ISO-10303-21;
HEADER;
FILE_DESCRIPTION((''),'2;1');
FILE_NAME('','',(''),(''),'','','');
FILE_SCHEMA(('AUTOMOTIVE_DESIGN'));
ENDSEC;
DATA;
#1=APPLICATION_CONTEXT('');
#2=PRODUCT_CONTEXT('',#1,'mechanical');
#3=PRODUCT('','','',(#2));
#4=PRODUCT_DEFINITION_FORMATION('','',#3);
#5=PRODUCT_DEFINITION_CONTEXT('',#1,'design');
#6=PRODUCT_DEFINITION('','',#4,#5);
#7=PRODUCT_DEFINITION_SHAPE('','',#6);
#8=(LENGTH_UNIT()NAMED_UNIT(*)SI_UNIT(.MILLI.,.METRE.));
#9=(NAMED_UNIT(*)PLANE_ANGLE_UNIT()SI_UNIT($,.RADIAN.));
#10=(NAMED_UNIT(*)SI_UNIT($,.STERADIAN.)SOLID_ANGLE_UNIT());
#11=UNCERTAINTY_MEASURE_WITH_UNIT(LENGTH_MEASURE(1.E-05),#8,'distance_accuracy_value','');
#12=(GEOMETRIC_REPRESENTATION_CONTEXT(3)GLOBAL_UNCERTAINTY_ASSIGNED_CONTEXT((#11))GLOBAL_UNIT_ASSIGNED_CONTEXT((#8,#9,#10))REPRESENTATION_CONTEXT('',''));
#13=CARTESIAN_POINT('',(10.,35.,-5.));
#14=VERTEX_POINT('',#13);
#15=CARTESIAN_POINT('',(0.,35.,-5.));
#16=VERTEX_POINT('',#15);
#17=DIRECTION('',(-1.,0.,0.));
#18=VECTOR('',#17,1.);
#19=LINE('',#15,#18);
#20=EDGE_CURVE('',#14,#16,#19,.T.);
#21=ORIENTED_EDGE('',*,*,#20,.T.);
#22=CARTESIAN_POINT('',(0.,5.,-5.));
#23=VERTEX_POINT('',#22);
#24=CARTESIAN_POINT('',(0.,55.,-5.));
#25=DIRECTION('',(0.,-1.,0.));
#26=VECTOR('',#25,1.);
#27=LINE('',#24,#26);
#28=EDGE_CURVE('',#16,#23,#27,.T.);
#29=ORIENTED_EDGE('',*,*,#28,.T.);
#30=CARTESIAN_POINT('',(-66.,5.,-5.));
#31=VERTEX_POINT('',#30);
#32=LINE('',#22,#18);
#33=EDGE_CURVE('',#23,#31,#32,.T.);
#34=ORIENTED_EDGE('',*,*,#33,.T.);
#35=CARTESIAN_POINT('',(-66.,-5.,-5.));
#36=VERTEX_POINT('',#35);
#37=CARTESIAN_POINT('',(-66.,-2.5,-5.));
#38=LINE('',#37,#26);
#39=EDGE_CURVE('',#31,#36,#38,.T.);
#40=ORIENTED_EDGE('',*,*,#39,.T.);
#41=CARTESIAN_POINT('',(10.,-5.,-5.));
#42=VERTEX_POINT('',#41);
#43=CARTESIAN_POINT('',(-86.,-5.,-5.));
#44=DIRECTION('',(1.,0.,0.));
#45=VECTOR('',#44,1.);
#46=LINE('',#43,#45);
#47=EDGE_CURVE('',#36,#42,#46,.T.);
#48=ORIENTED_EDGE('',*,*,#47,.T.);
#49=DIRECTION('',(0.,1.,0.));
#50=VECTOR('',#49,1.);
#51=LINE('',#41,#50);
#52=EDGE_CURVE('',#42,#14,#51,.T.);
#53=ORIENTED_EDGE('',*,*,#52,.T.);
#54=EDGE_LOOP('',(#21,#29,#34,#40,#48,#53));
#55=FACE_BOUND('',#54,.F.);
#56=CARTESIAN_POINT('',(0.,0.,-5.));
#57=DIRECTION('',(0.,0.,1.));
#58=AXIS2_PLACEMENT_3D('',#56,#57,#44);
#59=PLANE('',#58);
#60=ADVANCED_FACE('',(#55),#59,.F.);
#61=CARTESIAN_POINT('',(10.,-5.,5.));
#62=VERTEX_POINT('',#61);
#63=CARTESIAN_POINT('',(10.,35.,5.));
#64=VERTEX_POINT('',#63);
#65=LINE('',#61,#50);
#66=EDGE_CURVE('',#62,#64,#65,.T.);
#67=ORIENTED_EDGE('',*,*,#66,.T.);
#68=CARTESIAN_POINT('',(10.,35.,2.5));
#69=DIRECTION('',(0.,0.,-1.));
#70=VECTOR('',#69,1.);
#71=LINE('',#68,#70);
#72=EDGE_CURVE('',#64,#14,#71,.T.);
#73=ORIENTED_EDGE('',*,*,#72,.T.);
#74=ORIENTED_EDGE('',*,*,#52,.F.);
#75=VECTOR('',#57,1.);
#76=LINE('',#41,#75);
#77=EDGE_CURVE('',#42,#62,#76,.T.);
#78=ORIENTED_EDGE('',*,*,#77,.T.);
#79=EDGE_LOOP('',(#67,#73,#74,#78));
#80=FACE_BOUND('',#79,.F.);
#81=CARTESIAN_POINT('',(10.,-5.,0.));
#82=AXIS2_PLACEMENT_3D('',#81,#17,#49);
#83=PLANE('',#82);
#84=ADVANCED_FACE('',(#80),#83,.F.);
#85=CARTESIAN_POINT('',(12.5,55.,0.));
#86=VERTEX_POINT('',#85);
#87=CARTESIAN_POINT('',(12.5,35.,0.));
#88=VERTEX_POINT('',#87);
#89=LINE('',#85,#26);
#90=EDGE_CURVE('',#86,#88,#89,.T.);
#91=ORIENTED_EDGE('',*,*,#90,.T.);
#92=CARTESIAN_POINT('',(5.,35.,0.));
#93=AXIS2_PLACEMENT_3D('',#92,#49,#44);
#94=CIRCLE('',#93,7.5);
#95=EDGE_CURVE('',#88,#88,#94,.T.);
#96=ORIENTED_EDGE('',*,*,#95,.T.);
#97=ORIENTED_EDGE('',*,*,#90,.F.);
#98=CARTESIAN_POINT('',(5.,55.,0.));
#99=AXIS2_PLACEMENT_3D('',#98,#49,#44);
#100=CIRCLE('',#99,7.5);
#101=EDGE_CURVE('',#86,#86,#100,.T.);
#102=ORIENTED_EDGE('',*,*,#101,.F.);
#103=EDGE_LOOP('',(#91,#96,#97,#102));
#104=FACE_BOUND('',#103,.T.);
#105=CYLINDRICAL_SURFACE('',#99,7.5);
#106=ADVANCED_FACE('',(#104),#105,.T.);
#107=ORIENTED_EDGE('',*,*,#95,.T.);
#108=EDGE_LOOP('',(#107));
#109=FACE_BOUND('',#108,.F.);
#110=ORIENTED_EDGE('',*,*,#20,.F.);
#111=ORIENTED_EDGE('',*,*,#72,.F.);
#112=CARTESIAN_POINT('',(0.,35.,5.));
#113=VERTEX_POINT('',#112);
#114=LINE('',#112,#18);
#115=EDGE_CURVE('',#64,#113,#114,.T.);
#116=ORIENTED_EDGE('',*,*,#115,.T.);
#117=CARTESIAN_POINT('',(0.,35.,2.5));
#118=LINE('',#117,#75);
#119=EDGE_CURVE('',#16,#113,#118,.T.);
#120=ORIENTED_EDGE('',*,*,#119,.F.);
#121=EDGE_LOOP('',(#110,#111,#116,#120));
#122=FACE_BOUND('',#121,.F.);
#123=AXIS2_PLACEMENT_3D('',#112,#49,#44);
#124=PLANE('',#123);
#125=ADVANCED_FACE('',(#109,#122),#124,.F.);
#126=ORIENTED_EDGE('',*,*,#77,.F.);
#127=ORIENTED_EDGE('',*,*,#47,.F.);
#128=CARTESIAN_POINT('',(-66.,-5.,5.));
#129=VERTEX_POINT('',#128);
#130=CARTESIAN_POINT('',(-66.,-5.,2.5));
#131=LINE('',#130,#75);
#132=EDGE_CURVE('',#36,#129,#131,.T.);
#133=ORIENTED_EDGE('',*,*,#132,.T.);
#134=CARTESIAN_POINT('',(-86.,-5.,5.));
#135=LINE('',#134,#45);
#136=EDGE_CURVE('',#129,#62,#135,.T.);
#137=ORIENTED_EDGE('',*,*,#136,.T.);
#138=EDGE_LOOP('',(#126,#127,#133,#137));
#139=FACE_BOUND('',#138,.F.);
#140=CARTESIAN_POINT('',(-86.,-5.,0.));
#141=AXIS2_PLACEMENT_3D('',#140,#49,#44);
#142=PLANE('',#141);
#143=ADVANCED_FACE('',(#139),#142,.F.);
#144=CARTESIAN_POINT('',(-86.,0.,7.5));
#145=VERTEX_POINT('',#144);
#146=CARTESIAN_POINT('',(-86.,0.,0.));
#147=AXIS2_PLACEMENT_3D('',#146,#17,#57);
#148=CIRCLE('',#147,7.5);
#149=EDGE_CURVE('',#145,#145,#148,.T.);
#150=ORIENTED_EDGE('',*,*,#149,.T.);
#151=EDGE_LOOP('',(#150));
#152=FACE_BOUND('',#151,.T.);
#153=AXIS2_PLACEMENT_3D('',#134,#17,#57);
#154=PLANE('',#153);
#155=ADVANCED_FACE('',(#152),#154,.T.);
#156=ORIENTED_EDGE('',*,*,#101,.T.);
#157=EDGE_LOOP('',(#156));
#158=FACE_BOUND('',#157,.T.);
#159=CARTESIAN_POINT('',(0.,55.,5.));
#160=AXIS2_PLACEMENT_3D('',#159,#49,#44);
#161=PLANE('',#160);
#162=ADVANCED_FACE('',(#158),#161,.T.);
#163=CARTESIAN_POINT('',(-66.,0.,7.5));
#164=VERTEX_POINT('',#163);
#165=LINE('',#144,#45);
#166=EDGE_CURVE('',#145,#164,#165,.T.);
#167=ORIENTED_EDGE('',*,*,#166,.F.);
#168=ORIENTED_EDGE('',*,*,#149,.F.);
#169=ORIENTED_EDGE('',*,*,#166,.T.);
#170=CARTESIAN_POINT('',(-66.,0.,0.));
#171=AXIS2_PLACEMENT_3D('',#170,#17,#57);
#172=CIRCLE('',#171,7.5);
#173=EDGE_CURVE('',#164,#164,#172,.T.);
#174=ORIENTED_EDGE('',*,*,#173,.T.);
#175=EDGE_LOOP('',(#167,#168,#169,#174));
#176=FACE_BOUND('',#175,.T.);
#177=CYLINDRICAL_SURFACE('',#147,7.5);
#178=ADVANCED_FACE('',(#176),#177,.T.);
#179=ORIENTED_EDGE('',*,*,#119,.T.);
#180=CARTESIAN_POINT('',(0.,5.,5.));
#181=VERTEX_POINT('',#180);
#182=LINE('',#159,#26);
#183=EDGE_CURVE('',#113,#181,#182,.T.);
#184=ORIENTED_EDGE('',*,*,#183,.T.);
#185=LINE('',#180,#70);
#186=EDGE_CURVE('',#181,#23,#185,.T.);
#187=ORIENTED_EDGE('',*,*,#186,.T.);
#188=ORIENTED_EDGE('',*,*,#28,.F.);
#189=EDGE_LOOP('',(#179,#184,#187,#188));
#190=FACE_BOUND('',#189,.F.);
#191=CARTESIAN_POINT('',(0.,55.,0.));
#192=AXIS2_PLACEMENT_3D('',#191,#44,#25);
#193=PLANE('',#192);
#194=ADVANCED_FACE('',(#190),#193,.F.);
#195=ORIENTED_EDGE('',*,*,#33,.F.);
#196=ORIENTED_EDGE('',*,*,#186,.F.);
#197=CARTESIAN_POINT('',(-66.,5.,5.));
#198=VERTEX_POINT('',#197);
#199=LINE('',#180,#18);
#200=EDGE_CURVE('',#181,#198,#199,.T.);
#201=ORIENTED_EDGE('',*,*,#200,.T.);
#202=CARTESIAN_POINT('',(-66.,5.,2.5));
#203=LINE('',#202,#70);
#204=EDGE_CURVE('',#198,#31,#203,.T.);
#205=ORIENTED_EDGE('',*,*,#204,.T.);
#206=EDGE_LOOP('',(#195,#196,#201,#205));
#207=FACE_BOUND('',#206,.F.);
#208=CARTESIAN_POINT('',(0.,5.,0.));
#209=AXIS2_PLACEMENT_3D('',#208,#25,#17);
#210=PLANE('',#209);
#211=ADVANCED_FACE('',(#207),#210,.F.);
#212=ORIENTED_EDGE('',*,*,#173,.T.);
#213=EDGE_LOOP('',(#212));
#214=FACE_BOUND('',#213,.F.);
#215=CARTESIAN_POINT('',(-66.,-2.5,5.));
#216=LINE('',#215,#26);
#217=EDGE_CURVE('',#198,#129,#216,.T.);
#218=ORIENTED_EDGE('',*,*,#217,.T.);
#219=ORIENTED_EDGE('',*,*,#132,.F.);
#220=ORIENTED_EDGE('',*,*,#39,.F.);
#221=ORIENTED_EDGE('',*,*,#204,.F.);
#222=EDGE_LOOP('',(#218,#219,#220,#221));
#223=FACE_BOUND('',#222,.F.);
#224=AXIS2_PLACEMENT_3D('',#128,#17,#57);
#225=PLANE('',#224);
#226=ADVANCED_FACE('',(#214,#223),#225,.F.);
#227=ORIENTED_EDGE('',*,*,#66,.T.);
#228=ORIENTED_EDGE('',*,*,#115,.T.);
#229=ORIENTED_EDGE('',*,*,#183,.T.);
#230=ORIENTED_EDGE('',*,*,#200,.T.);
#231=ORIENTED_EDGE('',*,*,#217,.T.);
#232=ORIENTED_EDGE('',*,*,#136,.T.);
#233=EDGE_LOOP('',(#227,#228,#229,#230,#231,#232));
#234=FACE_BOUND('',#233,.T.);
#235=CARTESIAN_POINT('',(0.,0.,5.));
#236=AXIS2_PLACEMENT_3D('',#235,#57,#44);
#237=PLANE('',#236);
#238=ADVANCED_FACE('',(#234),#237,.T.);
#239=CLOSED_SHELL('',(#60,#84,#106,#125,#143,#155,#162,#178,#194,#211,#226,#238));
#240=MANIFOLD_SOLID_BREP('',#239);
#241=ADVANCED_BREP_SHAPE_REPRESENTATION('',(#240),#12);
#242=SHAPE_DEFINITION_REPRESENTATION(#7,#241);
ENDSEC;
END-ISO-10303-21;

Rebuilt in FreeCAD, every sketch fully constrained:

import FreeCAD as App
import Part
import Sketcher
from FreeCAD import Vector


def add_polygon(sketch, points):
    """Adds a closed chain of lines whose ends are joined by coincident constraints."""
    first, n = sketch.GeometryCount, len(points)
    for a, b in zip(points, points[1:] + points[:1]):
        sketch.addGeometry(Part.LineSegment(App.Vector(*a, 0), App.Vector(*b, 0)), False)
    for i in range(n):
        sketch.addConstraint(Sketcher.Constraint("Coincident", first + i, 2, first + (i + 1) % n, 1))

doc = App.newDocument("Part")
body = doc.addObject("PartDesign::Body", "Body")

sketch1 = body.newObject("Sketcher::SketchObject", "Sketch")
sketch1.AttachmentSupport = (doc.getObject("XY_Plane"), [""])
sketch1.MapMode = "FlatFace"
add_polygon(sketch1, [(0, 5), (-86, 5), (-86, -5), (10, -5), (10, 55), (0, 55)])
sketch1.addConstraint(Sketcher.Constraint("Horizontal", 0))
sketch1.addConstraint(Sketcher.Constraint("Vertical", 1))
sketch1.addConstraint(Sketcher.Constraint("Horizontal", 2))
sketch1.addConstraint(Sketcher.Constraint("Vertical", 3))
sketch1.addConstraint(Sketcher.Constraint("Horizontal", 4))
sketch1.addConstraint(Sketcher.Constraint("Vertical", 5))
sketch1.addConstraint(Sketcher.Constraint("PointOnObject", 4, 2, -2))
sketch1.addConstraint(Sketcher.Constraint("Equal", 4, 1))
sketch1.addConstraint(Sketcher.Constraint("DistanceX", 2, 1, 2, 2, 96.0))
sketch1.addConstraint(Sketcher.Constraint("DistanceX", 4, 2, 4, 1, 10.0))
sketch1.addConstraint(Sketcher.Constraint("DistanceY", 3, 1, 3, 2, 60.0))
sketch1.addConstraint(Sketcher.Constraint("DistanceY", -1, 1, 0, 2, 5.0))
pad1 = body.newObject("PartDesign::Pad", "Pad")
pad1.Profile = sketch1
pad1.Type = "TwoLengths"
pad1.Length = 5
pad1.Length2 = 5

sketch2 = body.newObject("Sketcher::SketchObject", "Sketch001")
sketch2.AttachmentSupport = (doc.getObject("XZ_Plane"), [""])
sketch2.MapMode = "FlatFace"
sketch2.AttachmentOffset = App.Placement(Vector(0, 0, -55), App.Rotation())
sketch2.addGeometry(Part.Circle(Vector(5, 0, 0), Vector(0, 0, 1), 8), False)
sketch2.addConstraint(Sketcher.Constraint("PointOnObject", 0, 3, -1))
sketch2.addConstraint(Sketcher.Constraint("Diameter", 0, 15.0))
sketch2.addConstraint(Sketcher.Constraint("DistanceX", -1, 1, 0, 3, 5.0))
pad2 = body.newObject("PartDesign::Pad", "Pad001")
pad2.Profile = sketch2
pad2.Length = 20

sketch3 = body.newObject("Sketcher::SketchObject", "Sketch002")
sketch3.AttachmentSupport = (doc.getObject("YZ_Plane"), [""])
sketch3.MapMode = "FlatFace"
sketch3.AttachmentOffset = App.Placement(Vector(0, 0, -86), App.Rotation())
sketch3.addGeometry(Part.Circle(Vector(0, 0, 0), Vector(0, 0, 1), 8), False)
sketch3.addConstraint(Sketcher.Constraint("Coincident", 0, 3, -1, 1))
sketch3.addConstraint(Sketcher.Constraint("Diameter", 0, 15.0))
pad3 = body.newObject("PartDesign::Pad", "Pad002")
pad3.Profile = sketch3
pad3.Length = 20

doc.recompute()
